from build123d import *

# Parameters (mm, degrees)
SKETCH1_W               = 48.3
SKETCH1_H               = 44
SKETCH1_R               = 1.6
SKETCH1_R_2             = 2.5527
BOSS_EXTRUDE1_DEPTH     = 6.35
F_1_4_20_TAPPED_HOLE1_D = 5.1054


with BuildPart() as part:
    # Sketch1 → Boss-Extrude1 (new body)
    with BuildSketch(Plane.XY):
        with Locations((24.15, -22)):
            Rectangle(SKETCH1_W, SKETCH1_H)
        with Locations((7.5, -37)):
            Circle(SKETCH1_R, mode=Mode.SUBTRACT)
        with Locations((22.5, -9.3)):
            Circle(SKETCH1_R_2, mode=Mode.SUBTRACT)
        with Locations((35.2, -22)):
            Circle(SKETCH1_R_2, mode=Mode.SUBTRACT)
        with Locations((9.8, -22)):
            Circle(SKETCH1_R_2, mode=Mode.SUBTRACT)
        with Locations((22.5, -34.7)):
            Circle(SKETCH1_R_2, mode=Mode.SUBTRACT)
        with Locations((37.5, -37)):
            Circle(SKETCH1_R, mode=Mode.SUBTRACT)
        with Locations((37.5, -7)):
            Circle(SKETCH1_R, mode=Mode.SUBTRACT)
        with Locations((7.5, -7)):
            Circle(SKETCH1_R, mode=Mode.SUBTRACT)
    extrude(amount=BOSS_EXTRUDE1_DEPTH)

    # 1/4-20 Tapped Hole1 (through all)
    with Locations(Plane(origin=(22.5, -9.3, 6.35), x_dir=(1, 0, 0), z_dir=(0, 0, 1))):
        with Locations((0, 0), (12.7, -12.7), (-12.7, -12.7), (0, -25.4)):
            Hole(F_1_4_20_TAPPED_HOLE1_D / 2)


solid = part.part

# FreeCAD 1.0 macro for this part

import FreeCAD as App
import Part
import Sketcher

V = App.Vector


def add_polygon(sketch, points):
    """Adds a closed chain of lines whose ends are joined by coincident constraints."""
    first, n = sketch.GeometryCount, len(points)
    for a, b in zip(points, points[1:] + points[:1]):
        sketch.addGeometry(Part.LineSegment(App.Vector(*a, 0), App.Vector(*b, 0)), False)
    for i in range(n):
        sketch.addConstraint(Sketcher.Constraint("Coincident", first + i, 2, first + (i + 1) % n, 1))

doc = App.newDocument("Part")
body = doc.addObject("PartDesign::Body", "Body")

# Sketch on XY plane
sketch1 = doc.addObject("Sketcher::SketchObject", "Sketch")
body.addObject(sketch1)
sketch1.AttachmentSupport = (doc.XY_Plane, [""])
sketch1.MapMode = "FlatFace"
add_polygon(sketch1, [(0, 0), (0, -44), (48.3, -44), (48.3, 0)])  # lines 0-3
sketch1.addGeometry(Part.Circle(V(7.5, -37, 0), V(0, 0, 1), 1.6), False)  # 4
sketch1.addGeometry(Part.Circle(V(22.5, -34.7, 0), V(0, 0, 1), 2.6), False)  # 5
sketch1.addGeometry(Part.Circle(V(37.5, -37, 0), V(0, 0, 1), 1.6), False)  # 6
sketch1.addGeometry(Part.Circle(V(9.8, -22, 0), V(0, 0, 1), 2.6), False)  # 7
sketch1.addGeometry(Part.Circle(V(7.5, -7, 0), V(0, 0, 1), 1.6), False)  # 8
sketch1.addGeometry(Part.Circle(V(35.2, -22, 0), V(0, 0, 1), 2.6), False)  # 9
sketch1.addGeometry(Part.Circle(V(22.5, -9.3, 0), V(0, 0, 1), 2.6), False)  # 10
sketch1.addGeometry(Part.Circle(V(37.5, -7, 0), V(0, 0, 1), 1.6), False)  # 11
sketch1.addConstraint(Sketcher.Constraint("Vertical", 0))
sketch1.addConstraint(Sketcher.Constraint("Horizontal", 1))
sketch1.addConstraint(Sketcher.Constraint("Vertical", 2))
sketch1.addConstraint(Sketcher.Constraint("Horizontal", 3))
sketch1.addConstraint(Sketcher.Constraint("Coincident", 3, 2, -1, 1))
sketch1.addConstraint(Sketcher.Constraint("Equal", 4, 6))
sketch1.addConstraint(Sketcher.Constraint("Equal", 5, 7))
sketch1.addConstraint(Sketcher.Constraint("Equal", 6, 8))
sketch1.addConstraint(Sketcher.Constraint("Equal", 7, 9))
sketch1.addConstraint(Sketcher.Constraint("Equal", 9, 10))
sketch1.addConstraint(Sketcher.Constraint("Equal", 8, 11))
sketch1.addConstraint(Sketcher.Constraint("Horizontal", 4, 3, 6, 3))
sketch1.addConstraint(Sketcher.Constraint("Horizontal", 7, 3, 9, 3))
sketch1.addConstraint(Sketcher.Constraint("Horizontal", 8, 3, 11, 3))
sketch1.addConstraint(Sketcher.Constraint("Vertical", 4, 3, 8, 3))
sketch1.addConstraint(Sketcher.Constraint("Vertical", 5, 3, 10, 3))
sketch1.addConstraint(Sketcher.Constraint("Vertical", 6, 3, 11, 3))
sketch1.addConstraint(Sketcher.Constraint("Diameter", 4, 3.2))
sketch1.addConstraint(Sketcher.Constraint("DistanceY", 0, 2, 0, 1, 44.0))
sketch1.addConstraint(Sketcher.Constraint("DistanceX", 1, 1, 1, 2, 48.3))
sketch1.addConstraint(Sketcher.Constraint("DistanceY", 4, 3, -1, 1, 37.0))
sketch1.addConstraint(Sketcher.Constraint("DistanceY", 7, 3, -1, 1, 22.0))
sketch1.addConstraint(Sketcher.Constraint("DistanceY", 8, 3, -1, 1, 7.0))
sketch1.addConstraint(Sketcher.Constraint("DistanceX", 4, 3, 5, 3, 15.0))
sketch1.addConstraint(Sketcher.Constraint("DistanceX", 5, 3, 6, 3, 15.0))
sketch1.addConstraint(Sketcher.Constraint("Diameter", 5, 5.1054))
sketch1.addConstraint(Sketcher.Constraint("DistanceX", -1, 1, 4, 3, 7.5))
sketch1.addConstraint(Sketcher.Constraint("DistanceY", 5, 3, -1, 1, 34.7))
sketch1.addConstraint(Sketcher.Constraint("DistanceX", -1, 1, 7, 3, 9.8))
sketch1.addConstraint(Sketcher.Constraint("DistanceX", -1, 1, 9, 3, 35.2))
sketch1.addConstraint(Sketcher.Constraint("DistanceY", 10, 3, -1, 1, 9.3))
pad1 = doc.addObject("PartDesign::Pad", "Pad")
body.addObject(pad1)
pad1.Profile = sketch1
pad1.Length = 6.35

# Sketch on XY plane
sketch2 = doc.addObject("Sketcher::SketchObject", "Sketch001")
body.addObject(sketch2)
sketch2.AttachmentSupport = (doc.XY_Plane, [""])
sketch2.MapMode = "FlatFace"
sketch2.AttachmentOffset = App.Placement(V(0, 0, 6.35), App.Rotation())
sketch2.addGeometry(Part.Circle(V(22.5, -9.3, 0), V(0, 0, 1), 2.6), False)
sketch2.addGeometry(Part.Circle(V(35.2, -22, 0), V(0, 0, 1), 2.6), False)
sketch2.addGeometry(Part.Circle(V(9.8, -22, 0), V(0, 0, 1), 2.6), False)
sketch2.addGeometry(Part.Circle(V(22.5, -34.7, 0), V(0, 0, 1), 2.6), False)
sketch2.addConstraint(Sketcher.Constraint("Equal", 0, 1))
sketch2.addConstraint(Sketcher.Constraint("Equal", 1, 2))
sketch2.addConstraint(Sketcher.Constraint("Equal", 2, 3))
sketch2.addConstraint(Sketcher.Constraint("Horizontal", 1, 3, 2, 3))
sketch2.addConstraint(Sketcher.Constraint("Vertical", 0, 3, 3, 3))
sketch2.addConstraint(Sketcher.Constraint("DistanceY", 1, 3, -1, 1, 22.0))
sketch2.addConstraint(Sketcher.Constraint("Diameter", 0, 5.1054))
sketch2.addConstraint(Sketcher.Constraint("DistanceX", -1, 1, 0, 3, 22.5))
sketch2.addConstraint(Sketcher.Constraint("DistanceY", 0, 3, -1, 1, 9.3))
sketch2.addConstraint(Sketcher.Constraint("DistanceX", -1, 1, 1, 3, 35.2))
sketch2.addConstraint(Sketcher.Constraint("DistanceX", -1, 1, 2, 3, 9.8))
sketch2.addConstraint(Sketcher.Constraint("DistanceY", 3, 3, -1, 1, 34.7))
doc.recompute()
hole = doc.addObject("PartDesign::Hole", "Hole")
body.addObject(hole)
hole.Profile = sketch2
hole.ThreadType = "None"
hole.Diameter = 5.1054
hole.DepthType = "ThroughAll"

doc.recompute()
